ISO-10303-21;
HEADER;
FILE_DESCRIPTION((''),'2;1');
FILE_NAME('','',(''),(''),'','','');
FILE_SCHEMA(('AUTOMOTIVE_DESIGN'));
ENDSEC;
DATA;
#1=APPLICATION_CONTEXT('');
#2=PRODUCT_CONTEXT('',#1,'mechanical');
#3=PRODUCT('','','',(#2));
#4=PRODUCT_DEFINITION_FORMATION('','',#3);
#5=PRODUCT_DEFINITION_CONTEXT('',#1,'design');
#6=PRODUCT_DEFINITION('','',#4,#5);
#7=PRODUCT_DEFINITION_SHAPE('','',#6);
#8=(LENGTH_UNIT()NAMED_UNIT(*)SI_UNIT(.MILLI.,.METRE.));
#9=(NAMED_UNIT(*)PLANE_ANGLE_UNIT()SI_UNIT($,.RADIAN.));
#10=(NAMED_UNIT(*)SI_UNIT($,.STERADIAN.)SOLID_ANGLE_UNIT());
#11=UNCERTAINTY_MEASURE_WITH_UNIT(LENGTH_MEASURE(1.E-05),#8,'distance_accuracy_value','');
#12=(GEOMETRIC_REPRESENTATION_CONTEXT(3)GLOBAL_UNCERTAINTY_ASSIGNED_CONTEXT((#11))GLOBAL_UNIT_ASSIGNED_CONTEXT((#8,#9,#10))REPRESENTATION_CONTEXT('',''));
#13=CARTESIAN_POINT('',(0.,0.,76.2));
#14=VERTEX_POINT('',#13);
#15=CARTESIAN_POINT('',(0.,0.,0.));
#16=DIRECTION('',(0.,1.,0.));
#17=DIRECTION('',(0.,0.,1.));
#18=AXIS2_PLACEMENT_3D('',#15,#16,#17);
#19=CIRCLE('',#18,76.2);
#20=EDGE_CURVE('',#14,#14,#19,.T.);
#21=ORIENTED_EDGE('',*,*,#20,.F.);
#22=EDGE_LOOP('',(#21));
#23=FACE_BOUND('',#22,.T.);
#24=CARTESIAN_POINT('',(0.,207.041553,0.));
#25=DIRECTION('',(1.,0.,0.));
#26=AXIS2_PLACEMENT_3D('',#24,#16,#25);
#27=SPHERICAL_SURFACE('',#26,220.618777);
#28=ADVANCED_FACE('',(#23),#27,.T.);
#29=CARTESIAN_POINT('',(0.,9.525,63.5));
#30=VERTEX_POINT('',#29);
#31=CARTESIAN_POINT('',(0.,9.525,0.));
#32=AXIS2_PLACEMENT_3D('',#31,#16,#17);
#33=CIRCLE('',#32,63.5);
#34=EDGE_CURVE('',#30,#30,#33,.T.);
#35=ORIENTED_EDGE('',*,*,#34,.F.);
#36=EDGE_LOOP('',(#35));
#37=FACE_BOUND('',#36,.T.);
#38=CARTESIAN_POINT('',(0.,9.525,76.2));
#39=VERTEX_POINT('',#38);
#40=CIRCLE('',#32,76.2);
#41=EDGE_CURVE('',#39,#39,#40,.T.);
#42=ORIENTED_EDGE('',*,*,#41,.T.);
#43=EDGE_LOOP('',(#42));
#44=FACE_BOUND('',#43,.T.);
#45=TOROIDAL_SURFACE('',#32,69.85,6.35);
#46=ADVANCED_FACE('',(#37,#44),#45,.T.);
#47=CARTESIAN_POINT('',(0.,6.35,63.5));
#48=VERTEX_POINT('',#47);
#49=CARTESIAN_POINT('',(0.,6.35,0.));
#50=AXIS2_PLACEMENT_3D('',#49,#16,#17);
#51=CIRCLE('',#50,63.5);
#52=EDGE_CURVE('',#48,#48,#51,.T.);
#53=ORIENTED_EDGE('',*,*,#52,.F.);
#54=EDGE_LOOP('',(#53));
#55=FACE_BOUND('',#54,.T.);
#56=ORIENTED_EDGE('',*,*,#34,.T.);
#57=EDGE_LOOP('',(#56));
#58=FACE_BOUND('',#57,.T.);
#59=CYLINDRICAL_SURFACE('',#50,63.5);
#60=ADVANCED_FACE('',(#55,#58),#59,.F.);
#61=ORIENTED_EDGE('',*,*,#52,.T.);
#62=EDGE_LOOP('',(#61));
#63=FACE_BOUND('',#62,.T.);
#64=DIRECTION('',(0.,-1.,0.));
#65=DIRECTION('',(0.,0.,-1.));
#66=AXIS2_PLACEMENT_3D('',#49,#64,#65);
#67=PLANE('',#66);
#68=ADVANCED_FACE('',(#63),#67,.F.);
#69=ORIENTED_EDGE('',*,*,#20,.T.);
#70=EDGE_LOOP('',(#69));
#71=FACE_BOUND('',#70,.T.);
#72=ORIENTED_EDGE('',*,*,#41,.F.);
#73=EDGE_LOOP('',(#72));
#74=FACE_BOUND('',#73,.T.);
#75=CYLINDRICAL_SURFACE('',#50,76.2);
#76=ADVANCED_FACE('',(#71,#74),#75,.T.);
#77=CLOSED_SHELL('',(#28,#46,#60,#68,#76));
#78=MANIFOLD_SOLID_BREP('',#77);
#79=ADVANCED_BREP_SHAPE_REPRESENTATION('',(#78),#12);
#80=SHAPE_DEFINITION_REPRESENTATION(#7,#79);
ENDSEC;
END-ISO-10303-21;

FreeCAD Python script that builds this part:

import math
import FreeCAD as App
import Part
import Sketcher
Q = App.Units.Quantity

doc = App.newDocument("Part")
body = doc.addObject("PartDesign::Body", "Body")

# Sketch on XY plane
sketch1 = body.newObject("Sketcher::SketchObject", "Sketch")
sketch1.AttachmentSupport = (doc.getObject("XY_Plane"), [""])
sketch1.MapMode = "FlatFace"
sketch1.addGeometry([
    Part.ArcOfCircle(Part.Circle(App.Vector(-69.8, 9.5, 0), App.Vector(0, 0, 1), 6.3), math.radians(0), math.radians(180)),  # 0
    Part.LineSegment(App.Vector(-76.2, 9.5, 0), App.Vector(-76.2, 0, 0)),  # 1
    Part.ArcOfCircle(Part.Circle(App.Vector(0, 207, 0), App.Vector(0, 0, 1), 220.6), math.radians(-110), math.radians(-90)),  # 2
    Part.LineSegment(App.Vector(0, -13.6, 0), App.Vector(0, 6.3, 0)),  # 3
    Part.LineSegment(App.Vector(0, 6.3, 0), App.Vector(-63.5, 6.3, 0)),  # 4
    Part.LineSegment(App.Vector(-63.5, 6.3, 0), App.Vector(-63.5, 9.5, 0)),  # 5
], False)
sketch1.addConstraint([
    Sketcher.Constraint("Tangent", 0, 2, 1, 1),
    Sketcher.Constraint("Coincident", 1, 2, 2, 1),
    Sketcher.Constraint("Coincident", 2, 2, 3, 1),
    Sketcher.Constraint("Coincident", 3, 2, 4, 1),
    Sketcher.Constraint("Coincident", 4, 2, 5, 1),
    Sketcher.Constraint("Tangent", 5, 2, 0, 1),
    Sketcher.Constraint("Vertical", 1),
    Sketcher.Constraint("Vertical", 3),
    Sketcher.Constraint("Horizontal", 4),
    Sketcher.Constraint("Vertical", 5),
    Sketcher.Constraint("PointOnObject", 2, 3, -2),
    Sketcher.Constraint("PointOnObject", 1, 2, -1),
    Sketcher.Constraint("PointOnObject", 2, 2, -2),
    Sketcher.Constraint("Radius", 0, Q("0.25 in")),
    Sketcher.Constraint("DistanceX", 4, 2, 4, 1, Q("2.5 in")),
    Sketcher.Constraint("DistanceY", 1, 2, 1, 1, Q("0.375 in")),
    Sketcher.Constraint("DistanceY", 5, 1, 5, 2, Q("0.125 in")),
    Sketcher.Constraint("Radius", 2, Q("220.618777 mm")),
])
revolution = body.newObject("PartDesign::Revolution", "Revolution")
revolution.Profile = sketch1
revolution.ReferenceAxis = (sketch1, ["V_Axis"])
revolution.Angle = 360

doc.recompute()
